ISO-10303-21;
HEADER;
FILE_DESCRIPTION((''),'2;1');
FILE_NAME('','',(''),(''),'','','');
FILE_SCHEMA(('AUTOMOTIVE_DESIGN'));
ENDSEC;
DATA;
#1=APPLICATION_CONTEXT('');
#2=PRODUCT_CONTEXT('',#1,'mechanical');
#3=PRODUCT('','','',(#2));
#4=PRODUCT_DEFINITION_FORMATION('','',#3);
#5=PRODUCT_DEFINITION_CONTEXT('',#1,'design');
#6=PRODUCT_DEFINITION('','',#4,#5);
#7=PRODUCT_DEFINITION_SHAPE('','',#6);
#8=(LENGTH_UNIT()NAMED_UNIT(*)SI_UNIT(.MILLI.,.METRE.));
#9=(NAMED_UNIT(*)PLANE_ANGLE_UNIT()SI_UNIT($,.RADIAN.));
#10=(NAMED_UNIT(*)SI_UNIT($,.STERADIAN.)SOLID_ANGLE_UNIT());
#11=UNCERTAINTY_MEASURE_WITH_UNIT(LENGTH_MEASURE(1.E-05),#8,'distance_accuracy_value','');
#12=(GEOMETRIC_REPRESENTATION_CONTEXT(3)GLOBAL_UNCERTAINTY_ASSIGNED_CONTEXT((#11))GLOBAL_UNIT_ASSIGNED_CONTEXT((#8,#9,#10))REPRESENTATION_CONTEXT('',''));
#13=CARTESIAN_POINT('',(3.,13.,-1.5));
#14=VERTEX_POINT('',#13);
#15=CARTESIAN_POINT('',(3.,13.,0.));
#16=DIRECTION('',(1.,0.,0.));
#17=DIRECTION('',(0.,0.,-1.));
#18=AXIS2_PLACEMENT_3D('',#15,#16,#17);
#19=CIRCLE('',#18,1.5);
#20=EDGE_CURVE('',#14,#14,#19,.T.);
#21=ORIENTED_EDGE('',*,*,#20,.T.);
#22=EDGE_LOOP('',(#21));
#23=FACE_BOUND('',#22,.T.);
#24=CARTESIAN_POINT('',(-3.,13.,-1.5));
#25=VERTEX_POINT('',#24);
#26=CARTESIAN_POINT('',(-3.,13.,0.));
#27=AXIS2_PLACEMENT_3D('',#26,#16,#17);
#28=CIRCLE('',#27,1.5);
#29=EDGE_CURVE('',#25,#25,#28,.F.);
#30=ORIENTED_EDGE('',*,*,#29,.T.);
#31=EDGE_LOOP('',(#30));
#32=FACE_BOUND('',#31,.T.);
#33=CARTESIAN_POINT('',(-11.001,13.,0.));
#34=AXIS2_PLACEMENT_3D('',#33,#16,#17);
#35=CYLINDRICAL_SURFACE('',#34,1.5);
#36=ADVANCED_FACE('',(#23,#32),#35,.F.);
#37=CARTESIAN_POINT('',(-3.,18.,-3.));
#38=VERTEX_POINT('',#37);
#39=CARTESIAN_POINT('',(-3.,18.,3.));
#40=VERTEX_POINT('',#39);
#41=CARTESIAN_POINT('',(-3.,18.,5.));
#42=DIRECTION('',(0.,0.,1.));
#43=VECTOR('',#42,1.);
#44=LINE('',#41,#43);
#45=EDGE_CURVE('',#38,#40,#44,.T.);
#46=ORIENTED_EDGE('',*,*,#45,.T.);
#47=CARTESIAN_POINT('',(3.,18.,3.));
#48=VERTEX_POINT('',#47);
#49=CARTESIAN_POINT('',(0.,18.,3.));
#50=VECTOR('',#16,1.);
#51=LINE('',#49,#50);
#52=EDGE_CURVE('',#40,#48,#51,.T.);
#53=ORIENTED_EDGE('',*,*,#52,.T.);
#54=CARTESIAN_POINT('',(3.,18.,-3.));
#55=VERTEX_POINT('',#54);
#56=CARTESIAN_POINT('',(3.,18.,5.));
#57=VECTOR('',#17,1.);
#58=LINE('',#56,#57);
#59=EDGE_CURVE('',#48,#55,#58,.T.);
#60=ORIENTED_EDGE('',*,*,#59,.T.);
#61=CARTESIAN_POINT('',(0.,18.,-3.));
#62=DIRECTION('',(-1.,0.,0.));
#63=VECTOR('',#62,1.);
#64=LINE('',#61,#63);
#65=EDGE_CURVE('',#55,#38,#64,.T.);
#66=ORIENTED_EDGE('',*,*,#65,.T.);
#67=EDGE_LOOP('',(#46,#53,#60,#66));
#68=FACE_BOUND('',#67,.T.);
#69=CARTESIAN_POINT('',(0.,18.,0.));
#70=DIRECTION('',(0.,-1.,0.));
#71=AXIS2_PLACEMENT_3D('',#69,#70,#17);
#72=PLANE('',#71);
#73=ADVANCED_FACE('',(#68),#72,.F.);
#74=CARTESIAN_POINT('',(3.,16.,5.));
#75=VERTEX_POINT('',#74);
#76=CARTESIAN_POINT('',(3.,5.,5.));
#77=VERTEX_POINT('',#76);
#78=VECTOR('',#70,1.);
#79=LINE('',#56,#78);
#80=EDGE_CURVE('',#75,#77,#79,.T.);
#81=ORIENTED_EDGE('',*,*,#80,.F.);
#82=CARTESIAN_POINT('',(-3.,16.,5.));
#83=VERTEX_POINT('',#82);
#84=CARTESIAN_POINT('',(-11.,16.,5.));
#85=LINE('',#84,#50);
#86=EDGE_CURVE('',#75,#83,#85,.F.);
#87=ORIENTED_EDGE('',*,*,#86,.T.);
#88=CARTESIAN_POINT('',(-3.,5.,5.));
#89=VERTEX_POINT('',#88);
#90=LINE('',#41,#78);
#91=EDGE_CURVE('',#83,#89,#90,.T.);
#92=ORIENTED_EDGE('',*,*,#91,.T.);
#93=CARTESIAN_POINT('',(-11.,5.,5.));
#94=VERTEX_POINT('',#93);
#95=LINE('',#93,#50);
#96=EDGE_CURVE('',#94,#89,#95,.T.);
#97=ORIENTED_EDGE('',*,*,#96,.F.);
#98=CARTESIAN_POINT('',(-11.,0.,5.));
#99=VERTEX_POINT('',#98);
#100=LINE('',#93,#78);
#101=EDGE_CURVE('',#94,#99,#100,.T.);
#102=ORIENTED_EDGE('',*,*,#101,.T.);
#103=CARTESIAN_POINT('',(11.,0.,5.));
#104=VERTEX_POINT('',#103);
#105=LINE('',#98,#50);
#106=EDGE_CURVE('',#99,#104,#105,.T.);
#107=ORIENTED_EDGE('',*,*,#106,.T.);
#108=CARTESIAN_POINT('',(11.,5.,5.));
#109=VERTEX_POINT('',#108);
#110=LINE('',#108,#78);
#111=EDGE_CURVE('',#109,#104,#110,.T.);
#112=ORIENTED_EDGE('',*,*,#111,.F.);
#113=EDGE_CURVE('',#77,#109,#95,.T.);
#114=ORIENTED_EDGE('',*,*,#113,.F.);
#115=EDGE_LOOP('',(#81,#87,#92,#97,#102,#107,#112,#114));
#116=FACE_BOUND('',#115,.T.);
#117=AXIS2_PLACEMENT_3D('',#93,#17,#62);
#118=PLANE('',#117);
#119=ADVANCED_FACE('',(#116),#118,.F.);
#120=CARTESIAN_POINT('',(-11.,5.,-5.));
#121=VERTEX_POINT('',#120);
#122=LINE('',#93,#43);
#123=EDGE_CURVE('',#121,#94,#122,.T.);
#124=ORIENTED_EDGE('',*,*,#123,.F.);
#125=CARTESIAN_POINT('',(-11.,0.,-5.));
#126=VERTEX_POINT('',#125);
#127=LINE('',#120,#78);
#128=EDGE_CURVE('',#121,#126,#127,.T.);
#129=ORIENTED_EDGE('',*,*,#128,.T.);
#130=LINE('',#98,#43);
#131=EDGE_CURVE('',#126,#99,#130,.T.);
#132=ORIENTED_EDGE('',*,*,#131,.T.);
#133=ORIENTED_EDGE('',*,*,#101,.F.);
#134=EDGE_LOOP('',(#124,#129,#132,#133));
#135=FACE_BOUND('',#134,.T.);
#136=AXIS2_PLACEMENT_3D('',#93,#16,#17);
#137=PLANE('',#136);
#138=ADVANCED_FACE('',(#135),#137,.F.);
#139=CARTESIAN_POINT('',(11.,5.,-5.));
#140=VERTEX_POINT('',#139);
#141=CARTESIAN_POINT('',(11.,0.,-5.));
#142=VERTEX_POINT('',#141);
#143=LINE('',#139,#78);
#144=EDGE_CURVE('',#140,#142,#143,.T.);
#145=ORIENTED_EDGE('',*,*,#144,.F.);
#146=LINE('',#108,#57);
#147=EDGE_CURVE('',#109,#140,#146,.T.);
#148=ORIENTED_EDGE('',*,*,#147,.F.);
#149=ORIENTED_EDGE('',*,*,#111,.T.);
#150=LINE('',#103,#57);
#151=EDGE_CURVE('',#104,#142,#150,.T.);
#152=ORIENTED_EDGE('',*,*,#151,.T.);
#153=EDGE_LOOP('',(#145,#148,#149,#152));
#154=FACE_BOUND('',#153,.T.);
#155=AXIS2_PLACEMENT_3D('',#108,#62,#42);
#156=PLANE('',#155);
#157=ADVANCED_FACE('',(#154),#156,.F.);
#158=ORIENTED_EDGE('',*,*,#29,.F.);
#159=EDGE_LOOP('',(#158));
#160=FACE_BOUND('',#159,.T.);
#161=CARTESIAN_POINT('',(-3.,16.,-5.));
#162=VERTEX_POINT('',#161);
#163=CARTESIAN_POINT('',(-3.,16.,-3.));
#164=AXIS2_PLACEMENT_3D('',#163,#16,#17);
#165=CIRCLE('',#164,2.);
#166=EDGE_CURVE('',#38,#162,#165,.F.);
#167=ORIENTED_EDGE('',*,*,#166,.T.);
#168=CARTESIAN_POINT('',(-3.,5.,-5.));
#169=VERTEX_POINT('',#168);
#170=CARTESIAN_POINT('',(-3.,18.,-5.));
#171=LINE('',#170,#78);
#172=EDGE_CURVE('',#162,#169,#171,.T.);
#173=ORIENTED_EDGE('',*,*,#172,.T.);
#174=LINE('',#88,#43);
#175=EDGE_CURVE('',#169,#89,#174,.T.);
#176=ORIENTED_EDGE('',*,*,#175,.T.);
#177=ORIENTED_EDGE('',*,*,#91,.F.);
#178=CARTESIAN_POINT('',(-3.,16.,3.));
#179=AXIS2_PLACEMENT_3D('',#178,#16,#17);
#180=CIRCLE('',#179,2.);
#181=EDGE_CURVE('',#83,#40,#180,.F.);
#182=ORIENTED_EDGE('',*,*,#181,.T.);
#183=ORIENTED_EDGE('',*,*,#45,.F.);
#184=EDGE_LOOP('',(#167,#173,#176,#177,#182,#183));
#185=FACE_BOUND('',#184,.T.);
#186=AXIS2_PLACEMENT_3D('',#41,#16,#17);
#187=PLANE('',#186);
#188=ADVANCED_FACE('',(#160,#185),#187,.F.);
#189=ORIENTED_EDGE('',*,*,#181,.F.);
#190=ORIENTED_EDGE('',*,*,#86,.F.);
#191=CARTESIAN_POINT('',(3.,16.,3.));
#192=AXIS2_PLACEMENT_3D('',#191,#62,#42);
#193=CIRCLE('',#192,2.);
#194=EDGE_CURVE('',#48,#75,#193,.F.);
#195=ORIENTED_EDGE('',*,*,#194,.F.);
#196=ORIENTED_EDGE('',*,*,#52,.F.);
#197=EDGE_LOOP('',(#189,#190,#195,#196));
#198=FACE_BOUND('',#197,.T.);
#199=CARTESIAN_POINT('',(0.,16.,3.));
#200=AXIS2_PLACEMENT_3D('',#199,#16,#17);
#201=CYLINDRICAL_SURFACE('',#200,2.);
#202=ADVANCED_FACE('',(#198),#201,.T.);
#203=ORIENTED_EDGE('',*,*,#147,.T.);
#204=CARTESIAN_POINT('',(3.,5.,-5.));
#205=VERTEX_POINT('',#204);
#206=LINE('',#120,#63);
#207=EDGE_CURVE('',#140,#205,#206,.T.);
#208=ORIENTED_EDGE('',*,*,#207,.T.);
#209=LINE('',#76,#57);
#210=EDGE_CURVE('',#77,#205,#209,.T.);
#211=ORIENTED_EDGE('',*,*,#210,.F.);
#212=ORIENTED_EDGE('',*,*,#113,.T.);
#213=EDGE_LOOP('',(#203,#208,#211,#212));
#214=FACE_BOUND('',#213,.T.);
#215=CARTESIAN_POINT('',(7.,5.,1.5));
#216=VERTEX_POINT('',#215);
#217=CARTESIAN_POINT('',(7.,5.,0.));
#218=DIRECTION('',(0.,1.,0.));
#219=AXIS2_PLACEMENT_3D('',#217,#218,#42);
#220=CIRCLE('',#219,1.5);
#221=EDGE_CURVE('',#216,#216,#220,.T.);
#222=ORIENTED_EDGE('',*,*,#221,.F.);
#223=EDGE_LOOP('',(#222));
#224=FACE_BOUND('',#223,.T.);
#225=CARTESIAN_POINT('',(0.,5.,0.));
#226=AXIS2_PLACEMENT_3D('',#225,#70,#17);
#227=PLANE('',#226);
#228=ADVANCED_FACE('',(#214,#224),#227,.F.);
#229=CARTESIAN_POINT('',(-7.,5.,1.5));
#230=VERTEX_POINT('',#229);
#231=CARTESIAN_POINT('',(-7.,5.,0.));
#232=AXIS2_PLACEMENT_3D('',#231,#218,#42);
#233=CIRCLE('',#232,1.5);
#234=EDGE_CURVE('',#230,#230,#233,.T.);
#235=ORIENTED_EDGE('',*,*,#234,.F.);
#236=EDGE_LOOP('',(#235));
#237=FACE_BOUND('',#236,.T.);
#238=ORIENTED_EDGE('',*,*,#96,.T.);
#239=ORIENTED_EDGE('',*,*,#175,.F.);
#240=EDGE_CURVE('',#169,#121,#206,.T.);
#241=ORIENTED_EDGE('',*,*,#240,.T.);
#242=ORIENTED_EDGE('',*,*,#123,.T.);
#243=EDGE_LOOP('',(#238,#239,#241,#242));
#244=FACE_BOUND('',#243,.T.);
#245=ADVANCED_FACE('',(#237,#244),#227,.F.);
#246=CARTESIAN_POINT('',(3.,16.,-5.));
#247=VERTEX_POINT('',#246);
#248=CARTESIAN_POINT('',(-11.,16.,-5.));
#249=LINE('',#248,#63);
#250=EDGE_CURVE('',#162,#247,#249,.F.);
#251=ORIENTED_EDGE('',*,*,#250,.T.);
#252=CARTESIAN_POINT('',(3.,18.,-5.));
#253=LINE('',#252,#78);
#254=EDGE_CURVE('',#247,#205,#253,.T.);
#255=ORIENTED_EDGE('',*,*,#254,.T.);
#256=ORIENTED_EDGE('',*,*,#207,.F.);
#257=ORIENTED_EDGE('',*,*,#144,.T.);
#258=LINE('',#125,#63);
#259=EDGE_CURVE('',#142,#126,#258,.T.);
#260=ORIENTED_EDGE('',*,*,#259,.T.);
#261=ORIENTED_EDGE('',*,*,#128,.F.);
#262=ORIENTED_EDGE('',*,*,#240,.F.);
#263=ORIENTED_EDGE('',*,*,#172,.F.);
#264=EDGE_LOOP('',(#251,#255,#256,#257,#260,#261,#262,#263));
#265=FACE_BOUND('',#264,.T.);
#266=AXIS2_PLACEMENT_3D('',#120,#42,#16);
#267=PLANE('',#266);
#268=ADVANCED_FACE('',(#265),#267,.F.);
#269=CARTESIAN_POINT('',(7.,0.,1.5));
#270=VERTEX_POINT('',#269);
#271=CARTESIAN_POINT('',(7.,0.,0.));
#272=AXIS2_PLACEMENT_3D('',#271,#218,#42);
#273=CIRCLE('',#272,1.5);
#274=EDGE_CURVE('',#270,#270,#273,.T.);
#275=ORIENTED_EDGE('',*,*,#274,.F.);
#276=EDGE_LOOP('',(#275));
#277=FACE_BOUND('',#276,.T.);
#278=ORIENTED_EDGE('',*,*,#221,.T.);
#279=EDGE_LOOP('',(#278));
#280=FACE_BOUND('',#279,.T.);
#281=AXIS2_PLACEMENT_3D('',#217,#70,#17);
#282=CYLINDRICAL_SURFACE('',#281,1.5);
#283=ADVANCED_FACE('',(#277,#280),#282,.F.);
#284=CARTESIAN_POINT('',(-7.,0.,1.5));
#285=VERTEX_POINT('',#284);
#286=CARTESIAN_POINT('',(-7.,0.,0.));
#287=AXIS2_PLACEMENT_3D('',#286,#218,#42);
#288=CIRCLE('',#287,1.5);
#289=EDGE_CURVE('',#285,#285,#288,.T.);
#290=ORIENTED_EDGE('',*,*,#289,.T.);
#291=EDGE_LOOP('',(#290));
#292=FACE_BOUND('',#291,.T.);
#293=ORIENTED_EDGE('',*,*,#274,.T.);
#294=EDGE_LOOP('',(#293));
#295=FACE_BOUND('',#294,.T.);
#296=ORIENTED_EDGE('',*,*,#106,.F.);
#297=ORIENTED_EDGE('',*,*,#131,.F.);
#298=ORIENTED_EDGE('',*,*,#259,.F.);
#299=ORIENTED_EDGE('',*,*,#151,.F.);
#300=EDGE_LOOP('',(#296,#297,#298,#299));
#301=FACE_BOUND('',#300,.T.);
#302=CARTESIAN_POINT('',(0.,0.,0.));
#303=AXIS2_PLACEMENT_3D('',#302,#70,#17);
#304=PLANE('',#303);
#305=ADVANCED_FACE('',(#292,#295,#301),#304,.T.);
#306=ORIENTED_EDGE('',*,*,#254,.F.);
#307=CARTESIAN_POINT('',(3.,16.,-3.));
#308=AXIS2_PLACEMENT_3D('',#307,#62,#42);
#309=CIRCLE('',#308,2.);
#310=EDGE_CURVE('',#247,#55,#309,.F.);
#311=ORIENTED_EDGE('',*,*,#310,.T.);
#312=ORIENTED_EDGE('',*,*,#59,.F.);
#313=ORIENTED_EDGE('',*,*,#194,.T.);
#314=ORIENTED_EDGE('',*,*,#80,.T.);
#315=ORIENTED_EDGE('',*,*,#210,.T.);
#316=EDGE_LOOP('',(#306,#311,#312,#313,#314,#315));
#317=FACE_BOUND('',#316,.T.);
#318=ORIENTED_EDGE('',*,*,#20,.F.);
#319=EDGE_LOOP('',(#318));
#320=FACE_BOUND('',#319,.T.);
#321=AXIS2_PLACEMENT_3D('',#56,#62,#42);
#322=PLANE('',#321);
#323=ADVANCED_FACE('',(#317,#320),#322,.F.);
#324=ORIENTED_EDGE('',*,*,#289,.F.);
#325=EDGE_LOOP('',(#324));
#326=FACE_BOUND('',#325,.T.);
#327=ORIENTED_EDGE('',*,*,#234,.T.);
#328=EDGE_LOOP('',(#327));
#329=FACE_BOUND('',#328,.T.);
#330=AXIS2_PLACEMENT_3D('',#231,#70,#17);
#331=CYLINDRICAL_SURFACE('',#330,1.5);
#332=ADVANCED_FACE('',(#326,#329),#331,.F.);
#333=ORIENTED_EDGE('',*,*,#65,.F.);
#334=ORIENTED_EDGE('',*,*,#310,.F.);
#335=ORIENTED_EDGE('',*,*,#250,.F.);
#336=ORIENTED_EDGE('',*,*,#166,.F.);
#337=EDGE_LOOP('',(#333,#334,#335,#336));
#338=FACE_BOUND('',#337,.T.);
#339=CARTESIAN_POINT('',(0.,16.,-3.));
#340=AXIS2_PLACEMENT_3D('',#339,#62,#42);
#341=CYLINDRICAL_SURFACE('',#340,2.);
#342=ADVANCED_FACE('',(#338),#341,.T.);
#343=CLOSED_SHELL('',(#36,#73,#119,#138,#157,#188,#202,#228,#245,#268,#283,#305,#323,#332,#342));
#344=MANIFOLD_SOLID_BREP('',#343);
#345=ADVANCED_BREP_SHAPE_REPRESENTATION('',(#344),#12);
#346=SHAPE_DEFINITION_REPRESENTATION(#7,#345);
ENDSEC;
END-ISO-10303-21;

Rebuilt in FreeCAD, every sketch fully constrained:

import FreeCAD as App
import Part
import Sketcher
from FreeCAD import Vector


def edges_at(feature, points):
    """Names of the edges that pass closest to the given points."""
    edges = feature.Shape.Edges
    near = lambda p: min(range(len(edges)), key=lambda i: edges[i].distToShape(Part.Vertex(*p))[0])
    return sorted({f"Edge{near(p) + 1}" for p in points})

doc = App.newDocument("Part")
params = doc.addObject("Spreadsheet::Sheet", "Params")
for row, (alias, value) in enumerate([
    ("sketch1_diameter", "3 mm"),
    ("sketch1_width", "22 mm"),
    ("sketch1_height", "10 mm"),
    ("pad1_length", "5 mm"),
    ("sketch2_width", "6 mm"),
    ("sketch2_height", "10 mm"),
    ("pad2_length", "13 mm"),
    ("sketch3_diameter", "3 mm"),
    ("fillet_radius", "2 mm"),
], start=1):
    params.set(f"A{row}", alias)
    params.set(f"B{row}", "=" + value)
    params.setAlias(f"B{row}", alias)

body = doc.addObject("PartDesign::Body", "Body")

sketch1 = body.newObject("Sketcher::SketchObject", "Sketch")
sketch1.AttachmentSupport = (doc.getObject("XZ_Plane"), [""])
sketch1.MapMode = "FlatFace"
sketch1.addGeometry([
    Part.LineSegment(Vector(-11, -5, 0), Vector(-11, 5, 0)),
    Part.LineSegment(Vector(-11, 5, 0), Vector(11, 5, 0)),
    Part.LineSegment(Vector(11, 5, 0), Vector(11, -5, 0)),
    Part.LineSegment(Vector(11, -5, 0), Vector(-11, -5, 0)),
    Part.Circle(Vector(-7, 0, 0), Vector(0, 0, 1), 1.5),
    Part.Circle(Vector(7, 0, 0), Vector(0, 0, 1), 1.5),
], False)
sketch1.addConstraint([
    Sketcher.Constraint("Coincident", 0, 2, 1, 1),
    Sketcher.Constraint("Coincident", 1, 2, 2, 1),
    Sketcher.Constraint("Coincident", 2, 2, 3, 1),
    Sketcher.Constraint("Coincident", 3, 2, 0, 1),
    Sketcher.Constraint("Vertical", 0),
    Sketcher.Constraint("Horizontal", 1),
    Sketcher.Constraint("Vertical", 2),
    Sketcher.Constraint("Horizontal", 3),
    Sketcher.Constraint("Equal", 4, 5),
    Sketcher.Constraint("Symmetric", 4, 3, 5, 3, -1, 1),
    Sketcher.Constraint("Symmetric", 0, 2, 2, 2, -1, 1),
    Sketcher.Constraint("PointOnObject", 4, 3, -1),
    Sketcher.Constraint("Diameter", 4, 3.0),
    Sketcher.Constraint("DistanceX", 1, 1, 1, 2, 22.0),
    Sketcher.Constraint("DistanceY", 0, 1, 0, 2, 10.0),
    Sketcher.Constraint("DistanceX", 4, 3, -1, 1, 7.0),
])
sketch1.setExpression("Constraints[12]", "Params.sketch1_diameter")
sketch1.setExpression("Constraints[13]", "Params.sketch1_width")
sketch1.setExpression("Constraints[14]", "Params.sketch1_height")
pad1 = body.newObject("PartDesign::Pad", "Pad")
pad1.Profile = sketch1
pad1.setExpression("Length", "Params.pad1_length")
pad1.Reversed = True

sketch2 = body.newObject("Sketcher::SketchObject", "Sketch001")
sketch2.AttachmentSupport = (doc.getObject("XZ_Plane"), [""])
sketch2.MapMode = "FlatFace"
sketch2.AttachmentOffset = App.Placement(Vector(0, 0, -5), App.Rotation())
sketch2.addGeometry([
    Part.LineSegment(Vector(-3, -5, 0), Vector(-3, 5, 0)),
    Part.LineSegment(Vector(-3, 5, 0), Vector(3, 5, 0)),
    Part.LineSegment(Vector(3, 5, 0), Vector(3, -5, 0)),
    Part.LineSegment(Vector(3, -5, 0), Vector(-3, -5, 0)),
], False)
sketch2.addConstraint([
    Sketcher.Constraint("Coincident", 0, 2, 1, 1),
    Sketcher.Constraint("Coincident", 1, 2, 2, 1),
    Sketcher.Constraint("Coincident", 2, 2, 3, 1),
    Sketcher.Constraint("Coincident", 3, 2, 0, 1),
    Sketcher.Constraint("Vertical", 0),
    Sketcher.Constraint("Horizontal", 1),
    Sketcher.Constraint("Vertical", 2),
    Sketcher.Constraint("Horizontal", 3),
    Sketcher.Constraint("Symmetric", 0, 2, 2, 2, -1, 1),
    Sketcher.Constraint("DistanceX", 1, 1, 1, 2, 6.0),
    Sketcher.Constraint("DistanceY", 0, 1, 0, 2, 10.0),
])
sketch2.setExpression("Constraints[9]", "Params.sketch2_width")
sketch2.setExpression("Constraints[10]", "Params.sketch2_height")
pad2 = body.newObject("PartDesign::Pad", "Pad001")
pad2.Profile = sketch2
pad2.setExpression("Length", "Params.pad2_length")
pad2.Reversed = True

sketch3 = body.newObject("Sketcher::SketchObject", "Sketch002")
sketch3.AttachmentSupport = (doc.getObject("YZ_Plane"), [""])
sketch3.MapMode = "FlatFace"
sketch3.AttachmentOffset = App.Placement(Vector(0, 0, 3), App.Rotation())
sketch3.addGeometry(Part.Circle(Vector(13, 0, 0), Vector(0, 0, 1), 1.5), False)
sketch3.addConstraint([
    Sketcher.Constraint("PointOnObject", 0, 3, -1),
    Sketcher.Constraint("Diameter", 0, 3.0),
    Sketcher.Constraint("DistanceX", -1, 1, 0, 3, 13.0),
])
sketch3.setExpression("Constraints[1]", "Params.sketch3_diameter")
pocket1 = body.newObject("PartDesign::Pocket", "Pocket")
pocket1.Profile = sketch3
pocket1.Type = "UpToFirst"
doc.recompute()

fillet = body.newObject("PartDesign::Fillet", "Fillet")
fillet.Base = (pocket1, edges_at(pocket1, [(0, 18, -5), (0, 18, 5)]))
fillet.setExpression("Radius", "Params.fillet_radius")

doc.recompute()
